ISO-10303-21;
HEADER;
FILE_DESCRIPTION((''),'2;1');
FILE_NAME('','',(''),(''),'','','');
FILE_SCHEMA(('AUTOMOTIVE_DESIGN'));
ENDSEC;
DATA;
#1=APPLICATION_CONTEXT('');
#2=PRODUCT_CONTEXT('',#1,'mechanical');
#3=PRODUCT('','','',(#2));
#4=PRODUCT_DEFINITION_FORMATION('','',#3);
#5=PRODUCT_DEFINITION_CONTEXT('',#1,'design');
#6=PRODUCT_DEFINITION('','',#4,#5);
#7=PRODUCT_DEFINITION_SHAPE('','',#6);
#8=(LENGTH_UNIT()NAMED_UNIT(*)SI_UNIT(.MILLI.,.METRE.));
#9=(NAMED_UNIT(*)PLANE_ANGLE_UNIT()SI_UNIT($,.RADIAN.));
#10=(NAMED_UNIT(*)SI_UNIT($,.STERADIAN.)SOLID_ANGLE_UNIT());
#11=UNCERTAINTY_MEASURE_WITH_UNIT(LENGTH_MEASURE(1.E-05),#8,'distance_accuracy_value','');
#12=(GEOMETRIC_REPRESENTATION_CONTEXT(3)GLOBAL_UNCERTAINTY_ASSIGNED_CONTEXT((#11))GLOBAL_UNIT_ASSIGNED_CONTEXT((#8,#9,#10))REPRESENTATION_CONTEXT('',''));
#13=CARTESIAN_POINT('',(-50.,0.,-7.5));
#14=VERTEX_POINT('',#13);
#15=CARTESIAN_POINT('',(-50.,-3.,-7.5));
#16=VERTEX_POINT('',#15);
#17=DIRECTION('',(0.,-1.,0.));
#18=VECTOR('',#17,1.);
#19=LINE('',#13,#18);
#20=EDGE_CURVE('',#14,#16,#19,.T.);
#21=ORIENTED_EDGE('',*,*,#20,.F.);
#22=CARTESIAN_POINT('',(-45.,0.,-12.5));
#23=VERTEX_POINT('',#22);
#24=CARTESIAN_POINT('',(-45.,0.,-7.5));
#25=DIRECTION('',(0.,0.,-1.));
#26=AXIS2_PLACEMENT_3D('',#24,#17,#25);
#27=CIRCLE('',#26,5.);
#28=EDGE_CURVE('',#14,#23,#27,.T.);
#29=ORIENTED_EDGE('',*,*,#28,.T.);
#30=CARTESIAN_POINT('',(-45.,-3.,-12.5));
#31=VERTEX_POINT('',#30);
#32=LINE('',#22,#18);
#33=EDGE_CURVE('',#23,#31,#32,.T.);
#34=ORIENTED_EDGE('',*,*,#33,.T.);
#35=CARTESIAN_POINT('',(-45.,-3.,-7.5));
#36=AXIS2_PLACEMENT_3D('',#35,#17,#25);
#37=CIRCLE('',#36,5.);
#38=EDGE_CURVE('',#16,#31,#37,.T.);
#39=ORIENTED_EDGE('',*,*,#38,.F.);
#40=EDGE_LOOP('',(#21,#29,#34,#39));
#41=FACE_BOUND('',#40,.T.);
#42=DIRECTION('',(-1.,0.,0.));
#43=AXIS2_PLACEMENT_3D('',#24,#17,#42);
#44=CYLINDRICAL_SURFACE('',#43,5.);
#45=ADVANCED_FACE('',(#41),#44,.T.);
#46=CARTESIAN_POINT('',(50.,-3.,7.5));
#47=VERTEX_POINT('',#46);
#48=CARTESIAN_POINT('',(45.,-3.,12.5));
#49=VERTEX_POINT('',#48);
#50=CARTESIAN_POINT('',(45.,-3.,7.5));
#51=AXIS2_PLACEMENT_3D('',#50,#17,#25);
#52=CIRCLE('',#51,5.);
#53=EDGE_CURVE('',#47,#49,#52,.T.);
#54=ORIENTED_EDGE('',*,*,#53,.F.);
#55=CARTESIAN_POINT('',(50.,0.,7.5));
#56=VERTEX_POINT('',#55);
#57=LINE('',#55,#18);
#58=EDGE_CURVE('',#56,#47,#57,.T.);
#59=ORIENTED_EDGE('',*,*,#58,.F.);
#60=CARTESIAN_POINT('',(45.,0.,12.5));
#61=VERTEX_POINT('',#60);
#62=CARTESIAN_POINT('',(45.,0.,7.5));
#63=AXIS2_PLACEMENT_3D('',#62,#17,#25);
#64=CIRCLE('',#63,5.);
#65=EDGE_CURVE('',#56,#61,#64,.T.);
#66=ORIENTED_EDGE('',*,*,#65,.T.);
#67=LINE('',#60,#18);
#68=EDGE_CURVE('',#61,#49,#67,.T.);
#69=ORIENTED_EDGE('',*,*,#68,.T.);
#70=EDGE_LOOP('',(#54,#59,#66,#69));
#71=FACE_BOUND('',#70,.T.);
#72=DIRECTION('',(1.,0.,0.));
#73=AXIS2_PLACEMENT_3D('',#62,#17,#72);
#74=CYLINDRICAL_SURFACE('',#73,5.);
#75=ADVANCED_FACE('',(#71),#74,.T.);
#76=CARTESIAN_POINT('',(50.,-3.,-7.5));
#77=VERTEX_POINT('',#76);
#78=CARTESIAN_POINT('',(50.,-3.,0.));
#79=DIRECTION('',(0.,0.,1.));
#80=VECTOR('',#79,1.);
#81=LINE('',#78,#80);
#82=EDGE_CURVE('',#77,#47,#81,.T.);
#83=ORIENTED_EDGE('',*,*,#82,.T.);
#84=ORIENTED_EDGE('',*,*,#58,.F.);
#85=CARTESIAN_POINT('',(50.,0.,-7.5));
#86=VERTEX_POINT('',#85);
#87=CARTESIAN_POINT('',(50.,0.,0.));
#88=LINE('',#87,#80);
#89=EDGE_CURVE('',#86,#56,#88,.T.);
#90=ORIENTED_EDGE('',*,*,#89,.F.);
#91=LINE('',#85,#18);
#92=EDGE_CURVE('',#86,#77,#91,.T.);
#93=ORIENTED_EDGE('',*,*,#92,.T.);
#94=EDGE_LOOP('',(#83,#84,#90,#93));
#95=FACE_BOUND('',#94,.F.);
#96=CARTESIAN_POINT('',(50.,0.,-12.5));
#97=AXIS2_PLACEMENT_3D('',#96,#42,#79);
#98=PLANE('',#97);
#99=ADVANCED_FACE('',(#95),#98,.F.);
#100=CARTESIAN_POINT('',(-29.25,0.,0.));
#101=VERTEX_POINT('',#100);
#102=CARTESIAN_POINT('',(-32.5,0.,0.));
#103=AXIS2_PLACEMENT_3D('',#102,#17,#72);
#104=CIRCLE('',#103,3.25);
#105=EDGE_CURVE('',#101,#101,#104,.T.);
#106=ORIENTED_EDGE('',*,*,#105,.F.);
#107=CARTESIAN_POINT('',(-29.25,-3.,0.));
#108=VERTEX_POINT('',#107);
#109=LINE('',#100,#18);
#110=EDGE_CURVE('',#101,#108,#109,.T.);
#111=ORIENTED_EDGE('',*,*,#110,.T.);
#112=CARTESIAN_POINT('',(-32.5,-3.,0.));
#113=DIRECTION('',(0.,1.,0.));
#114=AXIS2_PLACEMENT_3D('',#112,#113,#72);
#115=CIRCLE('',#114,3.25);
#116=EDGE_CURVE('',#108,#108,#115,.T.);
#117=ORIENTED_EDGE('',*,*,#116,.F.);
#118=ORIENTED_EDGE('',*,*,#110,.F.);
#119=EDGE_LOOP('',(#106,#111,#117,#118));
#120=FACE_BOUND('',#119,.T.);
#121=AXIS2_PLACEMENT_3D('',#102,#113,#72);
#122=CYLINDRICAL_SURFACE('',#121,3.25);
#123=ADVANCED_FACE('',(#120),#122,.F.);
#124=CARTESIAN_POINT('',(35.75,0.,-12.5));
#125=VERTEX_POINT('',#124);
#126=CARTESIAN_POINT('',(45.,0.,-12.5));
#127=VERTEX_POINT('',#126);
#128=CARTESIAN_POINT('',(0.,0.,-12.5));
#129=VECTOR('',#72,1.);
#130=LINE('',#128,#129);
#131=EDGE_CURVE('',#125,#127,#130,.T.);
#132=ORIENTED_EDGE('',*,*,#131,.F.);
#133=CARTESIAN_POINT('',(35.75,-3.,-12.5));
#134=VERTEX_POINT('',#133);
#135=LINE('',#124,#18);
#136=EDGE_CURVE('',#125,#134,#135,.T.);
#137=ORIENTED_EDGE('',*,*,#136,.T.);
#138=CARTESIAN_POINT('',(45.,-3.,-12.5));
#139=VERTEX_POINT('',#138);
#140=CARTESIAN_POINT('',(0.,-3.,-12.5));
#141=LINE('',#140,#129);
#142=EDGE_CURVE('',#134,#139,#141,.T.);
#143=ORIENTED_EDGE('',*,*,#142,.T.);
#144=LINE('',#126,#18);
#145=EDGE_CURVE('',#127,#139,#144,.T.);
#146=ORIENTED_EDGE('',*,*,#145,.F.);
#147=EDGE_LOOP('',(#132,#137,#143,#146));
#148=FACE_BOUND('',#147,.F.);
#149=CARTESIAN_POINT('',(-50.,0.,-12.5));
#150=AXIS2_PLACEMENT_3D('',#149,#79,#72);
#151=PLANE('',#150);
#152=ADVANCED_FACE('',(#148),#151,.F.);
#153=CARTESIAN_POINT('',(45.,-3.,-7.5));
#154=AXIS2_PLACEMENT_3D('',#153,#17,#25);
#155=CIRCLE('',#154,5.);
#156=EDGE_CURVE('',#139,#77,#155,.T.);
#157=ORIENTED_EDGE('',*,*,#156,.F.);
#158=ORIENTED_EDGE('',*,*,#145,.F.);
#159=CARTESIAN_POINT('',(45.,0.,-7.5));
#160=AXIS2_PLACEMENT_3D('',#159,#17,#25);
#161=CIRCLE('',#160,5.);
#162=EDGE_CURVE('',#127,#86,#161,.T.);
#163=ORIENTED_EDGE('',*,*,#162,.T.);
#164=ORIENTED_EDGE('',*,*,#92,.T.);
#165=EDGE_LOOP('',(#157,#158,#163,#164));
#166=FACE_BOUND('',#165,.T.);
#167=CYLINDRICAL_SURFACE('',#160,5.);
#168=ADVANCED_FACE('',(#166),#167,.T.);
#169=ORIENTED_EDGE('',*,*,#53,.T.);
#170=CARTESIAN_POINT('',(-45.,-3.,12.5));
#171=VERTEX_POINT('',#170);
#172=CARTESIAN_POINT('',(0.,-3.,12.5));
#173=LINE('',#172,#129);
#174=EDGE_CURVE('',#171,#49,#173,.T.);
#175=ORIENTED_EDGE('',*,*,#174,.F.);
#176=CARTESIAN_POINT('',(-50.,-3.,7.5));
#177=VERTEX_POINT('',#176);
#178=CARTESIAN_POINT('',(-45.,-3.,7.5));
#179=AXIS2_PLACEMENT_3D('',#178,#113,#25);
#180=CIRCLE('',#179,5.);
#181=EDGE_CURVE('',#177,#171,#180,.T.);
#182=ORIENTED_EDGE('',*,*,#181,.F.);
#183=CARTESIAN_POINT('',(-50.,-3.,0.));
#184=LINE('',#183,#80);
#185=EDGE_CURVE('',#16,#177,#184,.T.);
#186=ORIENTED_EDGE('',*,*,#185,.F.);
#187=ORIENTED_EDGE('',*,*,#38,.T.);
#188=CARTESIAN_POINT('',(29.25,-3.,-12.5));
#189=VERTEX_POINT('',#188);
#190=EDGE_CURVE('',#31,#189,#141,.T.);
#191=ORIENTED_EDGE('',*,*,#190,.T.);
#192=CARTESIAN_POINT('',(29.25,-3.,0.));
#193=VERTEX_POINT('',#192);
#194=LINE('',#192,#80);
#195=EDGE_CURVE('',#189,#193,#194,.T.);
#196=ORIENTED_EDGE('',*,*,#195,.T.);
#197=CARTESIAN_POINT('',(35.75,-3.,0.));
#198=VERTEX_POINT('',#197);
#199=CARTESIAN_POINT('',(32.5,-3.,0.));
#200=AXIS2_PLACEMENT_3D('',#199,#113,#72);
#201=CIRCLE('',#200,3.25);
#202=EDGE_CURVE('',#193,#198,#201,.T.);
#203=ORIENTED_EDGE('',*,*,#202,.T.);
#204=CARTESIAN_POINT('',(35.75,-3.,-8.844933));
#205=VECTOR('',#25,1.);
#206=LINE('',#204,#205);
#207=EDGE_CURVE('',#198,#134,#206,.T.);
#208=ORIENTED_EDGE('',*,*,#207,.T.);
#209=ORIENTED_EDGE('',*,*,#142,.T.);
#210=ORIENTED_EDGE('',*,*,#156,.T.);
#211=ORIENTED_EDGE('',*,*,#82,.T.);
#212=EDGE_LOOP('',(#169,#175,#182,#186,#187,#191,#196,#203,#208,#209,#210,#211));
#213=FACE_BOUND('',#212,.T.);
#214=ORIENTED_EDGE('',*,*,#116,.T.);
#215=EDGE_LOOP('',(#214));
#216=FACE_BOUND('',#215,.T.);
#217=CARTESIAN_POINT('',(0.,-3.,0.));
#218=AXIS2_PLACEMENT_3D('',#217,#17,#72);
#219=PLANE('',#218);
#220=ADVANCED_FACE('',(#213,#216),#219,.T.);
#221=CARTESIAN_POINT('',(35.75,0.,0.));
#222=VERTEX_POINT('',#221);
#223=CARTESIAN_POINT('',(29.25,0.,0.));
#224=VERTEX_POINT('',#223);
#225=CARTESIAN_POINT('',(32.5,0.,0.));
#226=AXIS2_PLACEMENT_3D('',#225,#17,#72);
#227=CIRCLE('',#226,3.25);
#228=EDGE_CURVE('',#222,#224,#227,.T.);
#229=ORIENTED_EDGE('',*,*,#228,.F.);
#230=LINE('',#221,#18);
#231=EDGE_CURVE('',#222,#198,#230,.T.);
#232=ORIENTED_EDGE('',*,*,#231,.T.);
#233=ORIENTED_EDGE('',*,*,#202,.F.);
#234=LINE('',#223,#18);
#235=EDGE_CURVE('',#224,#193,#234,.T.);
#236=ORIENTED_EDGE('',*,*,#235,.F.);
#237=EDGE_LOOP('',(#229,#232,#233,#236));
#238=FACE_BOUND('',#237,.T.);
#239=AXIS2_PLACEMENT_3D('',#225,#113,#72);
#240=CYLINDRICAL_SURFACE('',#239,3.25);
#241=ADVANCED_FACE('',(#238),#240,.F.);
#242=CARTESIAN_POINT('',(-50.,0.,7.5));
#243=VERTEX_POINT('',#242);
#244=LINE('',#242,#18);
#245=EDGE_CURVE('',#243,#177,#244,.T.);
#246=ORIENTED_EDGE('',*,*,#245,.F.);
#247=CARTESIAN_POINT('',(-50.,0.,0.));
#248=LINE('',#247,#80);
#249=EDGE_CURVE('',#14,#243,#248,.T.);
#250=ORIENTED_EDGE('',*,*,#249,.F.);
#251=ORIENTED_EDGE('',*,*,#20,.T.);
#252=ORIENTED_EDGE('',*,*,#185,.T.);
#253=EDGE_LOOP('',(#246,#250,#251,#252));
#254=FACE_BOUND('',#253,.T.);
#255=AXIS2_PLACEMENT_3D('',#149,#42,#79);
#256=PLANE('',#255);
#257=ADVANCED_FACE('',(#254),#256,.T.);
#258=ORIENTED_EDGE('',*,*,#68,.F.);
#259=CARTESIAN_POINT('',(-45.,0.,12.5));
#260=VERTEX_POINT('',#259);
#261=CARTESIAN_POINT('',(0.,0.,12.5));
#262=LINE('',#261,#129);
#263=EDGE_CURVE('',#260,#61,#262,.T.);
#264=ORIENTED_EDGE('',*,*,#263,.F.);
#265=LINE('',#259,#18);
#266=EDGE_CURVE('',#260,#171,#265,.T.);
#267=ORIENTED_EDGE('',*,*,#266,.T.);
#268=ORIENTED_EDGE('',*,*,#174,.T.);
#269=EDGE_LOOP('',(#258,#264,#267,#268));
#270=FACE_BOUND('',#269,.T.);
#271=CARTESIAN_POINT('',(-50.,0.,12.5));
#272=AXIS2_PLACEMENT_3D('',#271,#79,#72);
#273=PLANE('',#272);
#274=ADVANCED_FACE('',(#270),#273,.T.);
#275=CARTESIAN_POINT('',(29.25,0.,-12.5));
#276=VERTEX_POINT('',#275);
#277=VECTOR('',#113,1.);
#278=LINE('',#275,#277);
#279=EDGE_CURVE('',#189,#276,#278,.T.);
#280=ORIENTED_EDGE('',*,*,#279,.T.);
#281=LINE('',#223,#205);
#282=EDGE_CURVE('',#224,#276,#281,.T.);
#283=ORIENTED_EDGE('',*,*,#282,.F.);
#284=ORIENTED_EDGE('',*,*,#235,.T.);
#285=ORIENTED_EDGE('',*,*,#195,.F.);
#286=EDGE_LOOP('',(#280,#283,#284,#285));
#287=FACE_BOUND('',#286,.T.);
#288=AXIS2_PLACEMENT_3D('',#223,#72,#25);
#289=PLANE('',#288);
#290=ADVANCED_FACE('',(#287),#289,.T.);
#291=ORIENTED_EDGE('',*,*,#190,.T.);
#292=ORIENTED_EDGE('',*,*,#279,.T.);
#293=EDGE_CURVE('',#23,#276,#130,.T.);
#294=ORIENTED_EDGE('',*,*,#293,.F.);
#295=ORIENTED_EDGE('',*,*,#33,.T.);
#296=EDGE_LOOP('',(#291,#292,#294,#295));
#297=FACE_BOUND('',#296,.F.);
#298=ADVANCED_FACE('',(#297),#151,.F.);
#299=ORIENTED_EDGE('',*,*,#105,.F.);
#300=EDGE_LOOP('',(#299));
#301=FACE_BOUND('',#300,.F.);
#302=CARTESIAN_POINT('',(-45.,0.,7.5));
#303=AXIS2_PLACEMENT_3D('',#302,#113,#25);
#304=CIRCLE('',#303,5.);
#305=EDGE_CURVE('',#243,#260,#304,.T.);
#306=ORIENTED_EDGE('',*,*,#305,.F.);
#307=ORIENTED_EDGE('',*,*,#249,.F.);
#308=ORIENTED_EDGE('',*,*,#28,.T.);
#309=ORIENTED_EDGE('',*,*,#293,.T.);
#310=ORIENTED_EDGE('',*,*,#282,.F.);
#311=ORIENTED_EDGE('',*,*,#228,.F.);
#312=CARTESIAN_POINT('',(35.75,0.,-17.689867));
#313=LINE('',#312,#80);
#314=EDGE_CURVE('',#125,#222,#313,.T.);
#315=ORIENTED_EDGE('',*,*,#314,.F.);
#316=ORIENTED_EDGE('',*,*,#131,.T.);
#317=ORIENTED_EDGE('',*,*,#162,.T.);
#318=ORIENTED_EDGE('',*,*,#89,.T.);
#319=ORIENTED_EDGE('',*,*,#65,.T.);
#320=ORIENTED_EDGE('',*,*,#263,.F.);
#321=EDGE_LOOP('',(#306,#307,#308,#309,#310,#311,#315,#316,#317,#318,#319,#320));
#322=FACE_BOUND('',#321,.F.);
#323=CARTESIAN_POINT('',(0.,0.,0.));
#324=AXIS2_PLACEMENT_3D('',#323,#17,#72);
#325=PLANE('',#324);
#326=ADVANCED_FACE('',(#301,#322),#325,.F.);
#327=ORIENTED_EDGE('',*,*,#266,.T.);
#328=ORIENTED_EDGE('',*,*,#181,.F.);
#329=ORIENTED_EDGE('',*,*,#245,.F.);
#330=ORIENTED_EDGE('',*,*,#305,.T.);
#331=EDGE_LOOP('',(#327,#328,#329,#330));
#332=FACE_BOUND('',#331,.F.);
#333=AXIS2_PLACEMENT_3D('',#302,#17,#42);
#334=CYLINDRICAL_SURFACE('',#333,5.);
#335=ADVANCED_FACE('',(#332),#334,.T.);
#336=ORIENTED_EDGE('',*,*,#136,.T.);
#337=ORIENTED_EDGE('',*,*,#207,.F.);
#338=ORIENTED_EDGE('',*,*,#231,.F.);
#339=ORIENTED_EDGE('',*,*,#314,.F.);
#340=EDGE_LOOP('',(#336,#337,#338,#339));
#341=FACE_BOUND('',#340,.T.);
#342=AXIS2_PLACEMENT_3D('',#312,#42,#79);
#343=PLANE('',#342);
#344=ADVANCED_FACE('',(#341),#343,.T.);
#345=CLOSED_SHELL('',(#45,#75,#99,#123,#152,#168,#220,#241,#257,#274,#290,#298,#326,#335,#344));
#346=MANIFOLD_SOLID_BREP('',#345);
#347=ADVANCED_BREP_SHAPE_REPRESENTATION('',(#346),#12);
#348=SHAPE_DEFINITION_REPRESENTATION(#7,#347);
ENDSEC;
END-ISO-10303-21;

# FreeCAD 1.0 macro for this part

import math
import FreeCAD as App
import Part
import Sketcher
from FreeCAD import Vector


def edges_at(feature, points):
    """Names of the edges that pass closest to the given points."""
    edges = feature.Shape.Edges
    near = lambda p: min(range(len(edges)), key=lambda i: edges[i].distToShape(Part.Vertex(*p))[0])
    return sorted({f"Edge{near(p) + 1}" for p in points})


def add_polygon(sketch, points):
    """Adds a closed chain of lines whose ends are joined by coincident constraints."""
    first, n = sketch.GeometryCount, len(points)
    for a, b in zip(points, points[1:] + points[:1]):
        sketch.addGeometry(Part.LineSegment(App.Vector(*a, 0), App.Vector(*b, 0)), False)
    for i in range(n):
        sketch.addConstraint(Sketcher.Constraint("Coincident", first + i, 2, first + (i + 1) % n, 1))

doc = App.newDocument("Part")
params = doc.addObject("Spreadsheet::Sheet", "Params")
for row, (alias, value) in enumerate([
    ("sketch1_width", "100 mm"),
    ("sketch1_height", "25 mm"),
    ("pad1_length", "3 mm"),
    ("fillet_radius", "5 mm"),
    ("sketch2_diameter", "6.5 mm"),
    ("pocket1_length", "25 mm"),
], start=1):
    params.set(f"A{row}", alias)
    params.set(f"B{row}", "=" + value)
    params.setAlias(f"B{row}", alias)

body = doc.addObject("PartDesign::Body", "Body")

sketch1 = body.newObject("Sketcher::SketchObject", "Sketch")
sketch1.AttachmentSupport = (doc.getObject("XZ_Plane"), [""])
sketch1.MapMode = "FlatFace"
add_polygon(sketch1, [(-50, 12), (-50, -12), (50, -12), (50, 12)])
sketch1.addConstraint([
    Sketcher.Constraint("Vertical", 0),
    Sketcher.Constraint("Horizontal", 1),
    Sketcher.Constraint("Vertical", 2),
    Sketcher.Constraint("Horizontal", 3),
    Sketcher.Constraint("Symmetric", 0, 2, 2, 2, -1, 1),
    Sketcher.Constraint("DistanceX", 1, 1, 1, 2, 100.0),
    Sketcher.Constraint("DistanceY", 0, 2, 0, 1, 25.0),
])
sketch1.setExpression("Constraints[9]", "Params.sketch1_width")
sketch1.setExpression("Constraints[10]", "Params.sketch1_height")
pad1 = body.newObject("PartDesign::Pad", "Pad")
pad1.Profile = sketch1
pad1.setExpression("Length", "Params.pad1_length")
doc.recompute()

fillet = body.newObject("PartDesign::Fillet", "Fillet")
fillet.Base = (pad1, edges_at(pad1, [
    (50, -1.5, 12.5),
    (50, -1.5, -12.5),
    (-50, -1.5, -12.5),
    (-50, -1.5, 12.5),
]))
fillet.setExpression("Radius", "Params.fillet_radius")

sketch2 = body.newObject("Sketcher::SketchObject", "Sketch001")
sketch2.AttachmentSupport = (doc.getObject("XZ_Plane"), [""])
sketch2.MapMode = "FlatFace"
sketch2.addGeometry([
    Part.LineSegment(Vector(35.8, -17.7, 0), Vector(35.8, 0, 0)),
    Part.ArcOfCircle(Part.Circle(Vector(32.5, 0, 0), Vector(0, 0, 1), 3.2), math.radians(0), math.radians(180)),
    Part.LineSegment(Vector(29.2, 0, 0), Vector(29.2, -17.7, 0)),
    Part.LineSegment(Vector(29.2, -17.7, 0), Vector(35.8, -17.7, 0)),
    Part.Circle(Vector(-32.5, 0, 0), Vector(0, 0, 1), 3.2),
], False)
sketch2.addConstraint([
    Sketcher.Constraint("Tangent", 0, 2, 1, 1),
    Sketcher.Constraint("Tangent", 1, 2, 2, 1),
    Sketcher.Constraint("Coincident", 2, 2, 3, 1),
    Sketcher.Constraint("Coincident", 3, 2, 0, 1),
    Sketcher.Constraint("Vertical", 0),
    Sketcher.Constraint("Vertical", 2),
    Sketcher.Constraint("Horizontal", 3),
    Sketcher.Constraint("Equal", 1, 4),
    Sketcher.Constraint("Symmetric", 1, 3, 4, 3, -1, 1),
    Sketcher.Constraint("PointOnObject", 1, 3, -1),
    Sketcher.Constraint("Diameter", 4, 6.5),
    Sketcher.Constraint("DistanceX", 4, 3, 1, 3, 65.0),
    Sketcher.Constraint("DistanceY", 0, 1, 0, 2, 17.689867),
])
sketch2.setExpression("Constraints[10]", "Params.sketch2_diameter")
pocket1 = body.newObject("PartDesign::Pocket", "Pocket")
pocket1.Profile = sketch2
pocket1.setExpression("Length", "Params.pocket1_length")
pocket1.Reversed = True

doc.recompute()
